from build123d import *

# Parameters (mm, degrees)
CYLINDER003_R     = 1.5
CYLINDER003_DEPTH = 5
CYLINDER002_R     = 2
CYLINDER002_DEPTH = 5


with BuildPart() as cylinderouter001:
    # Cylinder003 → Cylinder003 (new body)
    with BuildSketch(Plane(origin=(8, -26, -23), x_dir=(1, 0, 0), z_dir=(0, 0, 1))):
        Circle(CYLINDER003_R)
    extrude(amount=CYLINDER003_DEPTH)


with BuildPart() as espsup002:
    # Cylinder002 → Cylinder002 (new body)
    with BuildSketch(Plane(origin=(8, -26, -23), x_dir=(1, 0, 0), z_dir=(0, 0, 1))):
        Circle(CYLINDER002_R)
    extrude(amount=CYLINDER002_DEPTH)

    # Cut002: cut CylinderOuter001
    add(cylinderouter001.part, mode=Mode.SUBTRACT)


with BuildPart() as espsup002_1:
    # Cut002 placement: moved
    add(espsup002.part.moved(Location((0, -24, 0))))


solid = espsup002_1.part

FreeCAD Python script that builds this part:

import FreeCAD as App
import Part
import Sketcher

V = App.Vector
Q = App.Units.Quantity

doc = App.newDocument("Part")
body = doc.addObject("PartDesign::Body", "Body")

sketch1 = body.newObject("Sketcher::SketchObject", "Sketch")
sketch1.AttachmentSupport = (doc.getObject("XY_Plane"), [""])
sketch1.MapMode = "FlatFace"
sketch1.AttachmentOffset = App.Placement(V(0, 0, -23), App.Rotation())
sketch1.addGeometry(Part.Circle(V(8, -26, 0), V(0, 0, 1), 1.5), False)
sketch1.addConstraint([
    Sketcher.Constraint("Diameter", 0, Q("3 mm")),
    Sketcher.Constraint("DistanceX", -1, 1, 0, 3, Q("8 mm")),
    Sketcher.Constraint("DistanceY", 0, 3, -1, 1, Q("26 mm")),
])
pad1 = body.newObject("PartDesign::Pad", "Pad")
pad1.Profile = sketch1
pad1.Length = 5
body2 = doc.addObject("PartDesign::Body", "Body001")

sketch2 = body2.newObject("Sketcher::SketchObject", "Sketch001")
sketch2.AttachmentSupport = (doc.getObject("XY_Plane001"), [""])
sketch2.MapMode = "FlatFace"
sketch2.AttachmentOffset = App.Placement(V(0, 0, -23), App.Rotation())
sketch2.addGeometry(Part.Circle(V(8, -26, 0), V(0, 0, 1), 2), False)
sketch2.addConstraint([
    Sketcher.Constraint("Diameter", 0, Q("4 mm")),
    Sketcher.Constraint("DistanceX", -1, 1, 0, 3, Q("8 mm")),
    Sketcher.Constraint("DistanceY", 0, 3, -1, 1, Q("26 mm")),
])
pad2 = body2.newObject("PartDesign::Pad", "Pad001")
pad2.Profile = sketch2
pad2.Length = 5
doc.recompute()

boolean = body2.newObject("PartDesign::Boolean", "Boolean")
boolean.Type = "Cut"
boolean.addObjects([body])
body3 = doc.addObject("PartDesign::Body", "Body002")
doc.recompute()

body2.Placement = App.Placement(V(0, -24, 0), App.Rotation(V(0, 0, 1), 0))
boolean2 = body3.newObject("PartDesign::Boolean", "Boolean001")
boolean2.Type = "Fuse"
boolean2.addObjects([body2])

doc.recompute()
